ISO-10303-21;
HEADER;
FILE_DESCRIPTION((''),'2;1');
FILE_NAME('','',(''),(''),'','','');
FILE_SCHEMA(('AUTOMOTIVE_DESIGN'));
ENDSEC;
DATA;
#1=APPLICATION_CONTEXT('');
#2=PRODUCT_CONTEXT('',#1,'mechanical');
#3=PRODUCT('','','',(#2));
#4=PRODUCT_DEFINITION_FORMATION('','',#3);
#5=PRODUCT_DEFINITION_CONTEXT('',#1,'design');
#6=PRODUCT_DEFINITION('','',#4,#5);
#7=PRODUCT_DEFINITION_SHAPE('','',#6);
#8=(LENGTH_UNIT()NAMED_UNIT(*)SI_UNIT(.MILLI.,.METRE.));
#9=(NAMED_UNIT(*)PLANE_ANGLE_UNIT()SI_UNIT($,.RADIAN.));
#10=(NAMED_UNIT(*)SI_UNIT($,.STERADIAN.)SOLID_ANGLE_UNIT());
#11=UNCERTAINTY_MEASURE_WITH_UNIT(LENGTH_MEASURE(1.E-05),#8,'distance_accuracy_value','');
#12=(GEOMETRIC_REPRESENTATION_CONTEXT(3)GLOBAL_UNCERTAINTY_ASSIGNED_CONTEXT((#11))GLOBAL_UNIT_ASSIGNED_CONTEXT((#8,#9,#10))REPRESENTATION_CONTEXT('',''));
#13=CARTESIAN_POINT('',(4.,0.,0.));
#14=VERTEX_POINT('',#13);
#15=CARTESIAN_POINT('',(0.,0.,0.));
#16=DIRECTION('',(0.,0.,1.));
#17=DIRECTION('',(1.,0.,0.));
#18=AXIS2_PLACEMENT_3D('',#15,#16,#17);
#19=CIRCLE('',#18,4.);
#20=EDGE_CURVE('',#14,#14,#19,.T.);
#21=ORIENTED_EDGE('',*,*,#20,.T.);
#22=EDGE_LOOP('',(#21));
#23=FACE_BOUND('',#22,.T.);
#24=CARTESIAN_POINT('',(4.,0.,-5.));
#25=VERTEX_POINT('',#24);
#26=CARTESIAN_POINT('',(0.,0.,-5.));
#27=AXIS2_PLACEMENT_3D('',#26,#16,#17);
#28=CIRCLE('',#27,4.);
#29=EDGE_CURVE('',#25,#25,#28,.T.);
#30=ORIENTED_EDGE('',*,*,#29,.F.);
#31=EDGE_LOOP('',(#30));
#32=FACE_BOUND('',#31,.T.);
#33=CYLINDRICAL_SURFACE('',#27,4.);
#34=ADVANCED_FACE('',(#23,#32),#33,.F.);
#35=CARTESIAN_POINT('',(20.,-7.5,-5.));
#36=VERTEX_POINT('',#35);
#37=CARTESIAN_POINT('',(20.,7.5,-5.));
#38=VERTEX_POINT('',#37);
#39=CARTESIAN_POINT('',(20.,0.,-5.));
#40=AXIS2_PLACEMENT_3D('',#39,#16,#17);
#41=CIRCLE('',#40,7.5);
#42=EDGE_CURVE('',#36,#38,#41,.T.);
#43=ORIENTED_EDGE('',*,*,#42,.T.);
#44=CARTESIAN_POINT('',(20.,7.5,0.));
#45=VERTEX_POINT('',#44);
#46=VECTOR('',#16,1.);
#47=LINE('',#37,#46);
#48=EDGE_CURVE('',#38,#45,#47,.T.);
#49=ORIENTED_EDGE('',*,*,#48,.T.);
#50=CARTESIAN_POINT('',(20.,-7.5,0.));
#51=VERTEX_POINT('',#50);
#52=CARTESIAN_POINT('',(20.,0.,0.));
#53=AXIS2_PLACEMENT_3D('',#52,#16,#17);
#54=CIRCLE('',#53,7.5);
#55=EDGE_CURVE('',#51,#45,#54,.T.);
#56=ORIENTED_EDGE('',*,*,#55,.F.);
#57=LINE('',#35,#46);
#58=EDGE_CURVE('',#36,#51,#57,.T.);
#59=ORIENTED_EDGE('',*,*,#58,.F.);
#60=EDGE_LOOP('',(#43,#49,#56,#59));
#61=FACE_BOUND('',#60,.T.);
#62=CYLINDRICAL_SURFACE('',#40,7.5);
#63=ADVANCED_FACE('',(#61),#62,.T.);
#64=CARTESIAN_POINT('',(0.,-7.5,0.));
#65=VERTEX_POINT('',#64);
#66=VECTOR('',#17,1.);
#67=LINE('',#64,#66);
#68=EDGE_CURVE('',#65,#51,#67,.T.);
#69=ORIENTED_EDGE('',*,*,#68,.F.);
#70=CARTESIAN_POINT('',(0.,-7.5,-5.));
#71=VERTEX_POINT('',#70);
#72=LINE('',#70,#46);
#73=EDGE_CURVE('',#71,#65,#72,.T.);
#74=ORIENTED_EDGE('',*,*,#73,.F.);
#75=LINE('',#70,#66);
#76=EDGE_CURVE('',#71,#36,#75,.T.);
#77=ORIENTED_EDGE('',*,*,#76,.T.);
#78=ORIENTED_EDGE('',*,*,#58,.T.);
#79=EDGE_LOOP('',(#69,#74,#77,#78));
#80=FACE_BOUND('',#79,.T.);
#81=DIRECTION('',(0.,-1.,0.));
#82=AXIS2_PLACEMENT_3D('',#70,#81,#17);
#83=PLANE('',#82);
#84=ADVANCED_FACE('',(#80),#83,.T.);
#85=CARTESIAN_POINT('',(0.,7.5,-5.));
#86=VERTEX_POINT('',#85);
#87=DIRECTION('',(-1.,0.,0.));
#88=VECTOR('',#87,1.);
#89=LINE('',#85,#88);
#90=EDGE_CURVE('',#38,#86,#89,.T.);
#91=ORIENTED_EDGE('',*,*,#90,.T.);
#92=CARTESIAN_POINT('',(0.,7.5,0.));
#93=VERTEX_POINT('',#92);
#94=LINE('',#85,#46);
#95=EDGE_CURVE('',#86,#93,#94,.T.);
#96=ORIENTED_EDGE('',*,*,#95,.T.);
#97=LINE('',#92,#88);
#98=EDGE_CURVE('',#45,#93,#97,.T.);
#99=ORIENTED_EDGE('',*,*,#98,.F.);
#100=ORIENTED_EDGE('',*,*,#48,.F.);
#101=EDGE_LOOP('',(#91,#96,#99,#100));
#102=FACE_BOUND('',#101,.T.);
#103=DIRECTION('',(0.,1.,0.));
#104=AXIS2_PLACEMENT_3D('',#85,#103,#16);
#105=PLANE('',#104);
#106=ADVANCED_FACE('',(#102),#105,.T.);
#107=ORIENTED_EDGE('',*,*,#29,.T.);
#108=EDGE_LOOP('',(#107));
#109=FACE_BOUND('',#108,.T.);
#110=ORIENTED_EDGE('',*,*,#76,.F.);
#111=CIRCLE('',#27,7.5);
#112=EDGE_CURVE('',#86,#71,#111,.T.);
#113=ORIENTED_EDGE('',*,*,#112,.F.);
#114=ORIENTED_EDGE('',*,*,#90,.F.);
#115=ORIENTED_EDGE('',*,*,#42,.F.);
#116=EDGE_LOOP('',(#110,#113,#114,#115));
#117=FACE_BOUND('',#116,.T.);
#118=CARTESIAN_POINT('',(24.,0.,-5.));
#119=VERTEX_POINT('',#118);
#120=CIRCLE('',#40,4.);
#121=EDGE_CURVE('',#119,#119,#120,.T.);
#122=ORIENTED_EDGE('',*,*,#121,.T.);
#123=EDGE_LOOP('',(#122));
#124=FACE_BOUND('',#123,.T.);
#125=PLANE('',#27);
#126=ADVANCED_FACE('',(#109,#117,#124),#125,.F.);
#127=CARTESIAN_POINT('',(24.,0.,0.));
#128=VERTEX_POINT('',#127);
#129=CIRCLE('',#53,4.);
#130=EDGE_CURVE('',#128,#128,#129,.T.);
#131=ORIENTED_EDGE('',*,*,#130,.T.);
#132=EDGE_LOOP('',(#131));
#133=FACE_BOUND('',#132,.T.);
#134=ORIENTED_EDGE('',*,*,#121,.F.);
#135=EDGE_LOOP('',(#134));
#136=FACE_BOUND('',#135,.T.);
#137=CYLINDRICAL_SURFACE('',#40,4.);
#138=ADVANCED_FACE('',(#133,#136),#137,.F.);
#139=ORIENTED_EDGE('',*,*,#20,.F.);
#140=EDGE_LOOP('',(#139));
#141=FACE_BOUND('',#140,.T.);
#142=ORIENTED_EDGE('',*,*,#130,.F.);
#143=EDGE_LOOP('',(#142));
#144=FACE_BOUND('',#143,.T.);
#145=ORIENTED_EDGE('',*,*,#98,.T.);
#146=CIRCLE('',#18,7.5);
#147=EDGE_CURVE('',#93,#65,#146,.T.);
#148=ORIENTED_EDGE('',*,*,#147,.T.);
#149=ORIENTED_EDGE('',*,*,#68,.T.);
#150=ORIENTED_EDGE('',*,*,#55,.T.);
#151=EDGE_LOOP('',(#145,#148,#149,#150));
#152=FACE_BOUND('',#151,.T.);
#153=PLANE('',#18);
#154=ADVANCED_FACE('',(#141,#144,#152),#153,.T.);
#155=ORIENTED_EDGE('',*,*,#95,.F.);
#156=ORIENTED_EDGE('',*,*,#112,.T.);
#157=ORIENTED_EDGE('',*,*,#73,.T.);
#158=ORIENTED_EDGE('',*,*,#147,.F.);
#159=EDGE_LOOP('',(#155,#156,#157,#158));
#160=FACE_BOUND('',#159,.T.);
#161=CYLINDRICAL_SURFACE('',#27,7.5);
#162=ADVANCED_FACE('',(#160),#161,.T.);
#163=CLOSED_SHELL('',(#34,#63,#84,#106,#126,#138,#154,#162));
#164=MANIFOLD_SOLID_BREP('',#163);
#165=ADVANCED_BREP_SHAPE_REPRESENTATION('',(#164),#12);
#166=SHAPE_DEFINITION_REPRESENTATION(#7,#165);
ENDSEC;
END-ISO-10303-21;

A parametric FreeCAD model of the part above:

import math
import FreeCAD as App
import Part
import Sketcher

V = App.Vector

doc = App.newDocument("Part")
body = doc.addObject("PartDesign::Body", "Body")

# Sketch on XY plane
sketch1 = doc.addObject("Sketcher::SketchObject", "Sketch")
body.addObject(sketch1)
sketch1.AttachmentSupport = (doc.XY_Plane, [""])
sketch1.MapMode = "FlatFace"
sketch1.addGeometry([
    Part.LineSegment(V(20, 7.5, 0), V(0, 7.5, 0)),  # 0
    Part.ArcOfCircle(Part.Circle(V(0, 0, 0), V(0, 0, 1), 7.5), math.radians(90), math.radians(270)),  # 1
    Part.LineSegment(V(0, -7.5, 0), V(20, -7.5, 0)),  # 2
    Part.ArcOfCircle(Part.Circle(V(20, 0, 0), V(0, 0, 1), 7.5), math.radians(-90), math.radians(90)),  # 3
    Part.Circle(V(20, 0, 0), V(0, 0, 1), 4),  # 4
    Part.Circle(V(0, 0, 0), V(0, 0, 1), 4),  # 5
], False)
sketch1.addConstraint([
    Sketcher.Constraint("Tangent", 0, 2, 1, 1),
    Sketcher.Constraint("Tangent", 1, 2, 2, 1),
    Sketcher.Constraint("Tangent", 2, 2, 3, 1),
    Sketcher.Constraint("Tangent", 3, 2, 0, 1),
    Sketcher.Constraint("Horizontal", 0),
    Sketcher.Constraint("Horizontal", 2),
    Sketcher.Constraint("Coincident", 1, 3, -1, 1),
    Sketcher.Constraint("Coincident", 5, 3, -1, 1),
    Sketcher.Constraint("Coincident", 4, 3, 3, 3),
    Sketcher.Constraint("Equal", 4, 5),
    Sketcher.Constraint("Diameter", 4, 8.0),
    Sketcher.Constraint("Radius", 1, 7.5),
    Sketcher.Constraint("DistanceX", 0, 2, 0, 1, 20.0),
])
pad1 = doc.addObject("PartDesign::Pad", "Pad")
body.addObject(pad1)
pad1.Profile = sketch1
pad1.Length = 5
pad1.Reversed = True

doc.recompute()
